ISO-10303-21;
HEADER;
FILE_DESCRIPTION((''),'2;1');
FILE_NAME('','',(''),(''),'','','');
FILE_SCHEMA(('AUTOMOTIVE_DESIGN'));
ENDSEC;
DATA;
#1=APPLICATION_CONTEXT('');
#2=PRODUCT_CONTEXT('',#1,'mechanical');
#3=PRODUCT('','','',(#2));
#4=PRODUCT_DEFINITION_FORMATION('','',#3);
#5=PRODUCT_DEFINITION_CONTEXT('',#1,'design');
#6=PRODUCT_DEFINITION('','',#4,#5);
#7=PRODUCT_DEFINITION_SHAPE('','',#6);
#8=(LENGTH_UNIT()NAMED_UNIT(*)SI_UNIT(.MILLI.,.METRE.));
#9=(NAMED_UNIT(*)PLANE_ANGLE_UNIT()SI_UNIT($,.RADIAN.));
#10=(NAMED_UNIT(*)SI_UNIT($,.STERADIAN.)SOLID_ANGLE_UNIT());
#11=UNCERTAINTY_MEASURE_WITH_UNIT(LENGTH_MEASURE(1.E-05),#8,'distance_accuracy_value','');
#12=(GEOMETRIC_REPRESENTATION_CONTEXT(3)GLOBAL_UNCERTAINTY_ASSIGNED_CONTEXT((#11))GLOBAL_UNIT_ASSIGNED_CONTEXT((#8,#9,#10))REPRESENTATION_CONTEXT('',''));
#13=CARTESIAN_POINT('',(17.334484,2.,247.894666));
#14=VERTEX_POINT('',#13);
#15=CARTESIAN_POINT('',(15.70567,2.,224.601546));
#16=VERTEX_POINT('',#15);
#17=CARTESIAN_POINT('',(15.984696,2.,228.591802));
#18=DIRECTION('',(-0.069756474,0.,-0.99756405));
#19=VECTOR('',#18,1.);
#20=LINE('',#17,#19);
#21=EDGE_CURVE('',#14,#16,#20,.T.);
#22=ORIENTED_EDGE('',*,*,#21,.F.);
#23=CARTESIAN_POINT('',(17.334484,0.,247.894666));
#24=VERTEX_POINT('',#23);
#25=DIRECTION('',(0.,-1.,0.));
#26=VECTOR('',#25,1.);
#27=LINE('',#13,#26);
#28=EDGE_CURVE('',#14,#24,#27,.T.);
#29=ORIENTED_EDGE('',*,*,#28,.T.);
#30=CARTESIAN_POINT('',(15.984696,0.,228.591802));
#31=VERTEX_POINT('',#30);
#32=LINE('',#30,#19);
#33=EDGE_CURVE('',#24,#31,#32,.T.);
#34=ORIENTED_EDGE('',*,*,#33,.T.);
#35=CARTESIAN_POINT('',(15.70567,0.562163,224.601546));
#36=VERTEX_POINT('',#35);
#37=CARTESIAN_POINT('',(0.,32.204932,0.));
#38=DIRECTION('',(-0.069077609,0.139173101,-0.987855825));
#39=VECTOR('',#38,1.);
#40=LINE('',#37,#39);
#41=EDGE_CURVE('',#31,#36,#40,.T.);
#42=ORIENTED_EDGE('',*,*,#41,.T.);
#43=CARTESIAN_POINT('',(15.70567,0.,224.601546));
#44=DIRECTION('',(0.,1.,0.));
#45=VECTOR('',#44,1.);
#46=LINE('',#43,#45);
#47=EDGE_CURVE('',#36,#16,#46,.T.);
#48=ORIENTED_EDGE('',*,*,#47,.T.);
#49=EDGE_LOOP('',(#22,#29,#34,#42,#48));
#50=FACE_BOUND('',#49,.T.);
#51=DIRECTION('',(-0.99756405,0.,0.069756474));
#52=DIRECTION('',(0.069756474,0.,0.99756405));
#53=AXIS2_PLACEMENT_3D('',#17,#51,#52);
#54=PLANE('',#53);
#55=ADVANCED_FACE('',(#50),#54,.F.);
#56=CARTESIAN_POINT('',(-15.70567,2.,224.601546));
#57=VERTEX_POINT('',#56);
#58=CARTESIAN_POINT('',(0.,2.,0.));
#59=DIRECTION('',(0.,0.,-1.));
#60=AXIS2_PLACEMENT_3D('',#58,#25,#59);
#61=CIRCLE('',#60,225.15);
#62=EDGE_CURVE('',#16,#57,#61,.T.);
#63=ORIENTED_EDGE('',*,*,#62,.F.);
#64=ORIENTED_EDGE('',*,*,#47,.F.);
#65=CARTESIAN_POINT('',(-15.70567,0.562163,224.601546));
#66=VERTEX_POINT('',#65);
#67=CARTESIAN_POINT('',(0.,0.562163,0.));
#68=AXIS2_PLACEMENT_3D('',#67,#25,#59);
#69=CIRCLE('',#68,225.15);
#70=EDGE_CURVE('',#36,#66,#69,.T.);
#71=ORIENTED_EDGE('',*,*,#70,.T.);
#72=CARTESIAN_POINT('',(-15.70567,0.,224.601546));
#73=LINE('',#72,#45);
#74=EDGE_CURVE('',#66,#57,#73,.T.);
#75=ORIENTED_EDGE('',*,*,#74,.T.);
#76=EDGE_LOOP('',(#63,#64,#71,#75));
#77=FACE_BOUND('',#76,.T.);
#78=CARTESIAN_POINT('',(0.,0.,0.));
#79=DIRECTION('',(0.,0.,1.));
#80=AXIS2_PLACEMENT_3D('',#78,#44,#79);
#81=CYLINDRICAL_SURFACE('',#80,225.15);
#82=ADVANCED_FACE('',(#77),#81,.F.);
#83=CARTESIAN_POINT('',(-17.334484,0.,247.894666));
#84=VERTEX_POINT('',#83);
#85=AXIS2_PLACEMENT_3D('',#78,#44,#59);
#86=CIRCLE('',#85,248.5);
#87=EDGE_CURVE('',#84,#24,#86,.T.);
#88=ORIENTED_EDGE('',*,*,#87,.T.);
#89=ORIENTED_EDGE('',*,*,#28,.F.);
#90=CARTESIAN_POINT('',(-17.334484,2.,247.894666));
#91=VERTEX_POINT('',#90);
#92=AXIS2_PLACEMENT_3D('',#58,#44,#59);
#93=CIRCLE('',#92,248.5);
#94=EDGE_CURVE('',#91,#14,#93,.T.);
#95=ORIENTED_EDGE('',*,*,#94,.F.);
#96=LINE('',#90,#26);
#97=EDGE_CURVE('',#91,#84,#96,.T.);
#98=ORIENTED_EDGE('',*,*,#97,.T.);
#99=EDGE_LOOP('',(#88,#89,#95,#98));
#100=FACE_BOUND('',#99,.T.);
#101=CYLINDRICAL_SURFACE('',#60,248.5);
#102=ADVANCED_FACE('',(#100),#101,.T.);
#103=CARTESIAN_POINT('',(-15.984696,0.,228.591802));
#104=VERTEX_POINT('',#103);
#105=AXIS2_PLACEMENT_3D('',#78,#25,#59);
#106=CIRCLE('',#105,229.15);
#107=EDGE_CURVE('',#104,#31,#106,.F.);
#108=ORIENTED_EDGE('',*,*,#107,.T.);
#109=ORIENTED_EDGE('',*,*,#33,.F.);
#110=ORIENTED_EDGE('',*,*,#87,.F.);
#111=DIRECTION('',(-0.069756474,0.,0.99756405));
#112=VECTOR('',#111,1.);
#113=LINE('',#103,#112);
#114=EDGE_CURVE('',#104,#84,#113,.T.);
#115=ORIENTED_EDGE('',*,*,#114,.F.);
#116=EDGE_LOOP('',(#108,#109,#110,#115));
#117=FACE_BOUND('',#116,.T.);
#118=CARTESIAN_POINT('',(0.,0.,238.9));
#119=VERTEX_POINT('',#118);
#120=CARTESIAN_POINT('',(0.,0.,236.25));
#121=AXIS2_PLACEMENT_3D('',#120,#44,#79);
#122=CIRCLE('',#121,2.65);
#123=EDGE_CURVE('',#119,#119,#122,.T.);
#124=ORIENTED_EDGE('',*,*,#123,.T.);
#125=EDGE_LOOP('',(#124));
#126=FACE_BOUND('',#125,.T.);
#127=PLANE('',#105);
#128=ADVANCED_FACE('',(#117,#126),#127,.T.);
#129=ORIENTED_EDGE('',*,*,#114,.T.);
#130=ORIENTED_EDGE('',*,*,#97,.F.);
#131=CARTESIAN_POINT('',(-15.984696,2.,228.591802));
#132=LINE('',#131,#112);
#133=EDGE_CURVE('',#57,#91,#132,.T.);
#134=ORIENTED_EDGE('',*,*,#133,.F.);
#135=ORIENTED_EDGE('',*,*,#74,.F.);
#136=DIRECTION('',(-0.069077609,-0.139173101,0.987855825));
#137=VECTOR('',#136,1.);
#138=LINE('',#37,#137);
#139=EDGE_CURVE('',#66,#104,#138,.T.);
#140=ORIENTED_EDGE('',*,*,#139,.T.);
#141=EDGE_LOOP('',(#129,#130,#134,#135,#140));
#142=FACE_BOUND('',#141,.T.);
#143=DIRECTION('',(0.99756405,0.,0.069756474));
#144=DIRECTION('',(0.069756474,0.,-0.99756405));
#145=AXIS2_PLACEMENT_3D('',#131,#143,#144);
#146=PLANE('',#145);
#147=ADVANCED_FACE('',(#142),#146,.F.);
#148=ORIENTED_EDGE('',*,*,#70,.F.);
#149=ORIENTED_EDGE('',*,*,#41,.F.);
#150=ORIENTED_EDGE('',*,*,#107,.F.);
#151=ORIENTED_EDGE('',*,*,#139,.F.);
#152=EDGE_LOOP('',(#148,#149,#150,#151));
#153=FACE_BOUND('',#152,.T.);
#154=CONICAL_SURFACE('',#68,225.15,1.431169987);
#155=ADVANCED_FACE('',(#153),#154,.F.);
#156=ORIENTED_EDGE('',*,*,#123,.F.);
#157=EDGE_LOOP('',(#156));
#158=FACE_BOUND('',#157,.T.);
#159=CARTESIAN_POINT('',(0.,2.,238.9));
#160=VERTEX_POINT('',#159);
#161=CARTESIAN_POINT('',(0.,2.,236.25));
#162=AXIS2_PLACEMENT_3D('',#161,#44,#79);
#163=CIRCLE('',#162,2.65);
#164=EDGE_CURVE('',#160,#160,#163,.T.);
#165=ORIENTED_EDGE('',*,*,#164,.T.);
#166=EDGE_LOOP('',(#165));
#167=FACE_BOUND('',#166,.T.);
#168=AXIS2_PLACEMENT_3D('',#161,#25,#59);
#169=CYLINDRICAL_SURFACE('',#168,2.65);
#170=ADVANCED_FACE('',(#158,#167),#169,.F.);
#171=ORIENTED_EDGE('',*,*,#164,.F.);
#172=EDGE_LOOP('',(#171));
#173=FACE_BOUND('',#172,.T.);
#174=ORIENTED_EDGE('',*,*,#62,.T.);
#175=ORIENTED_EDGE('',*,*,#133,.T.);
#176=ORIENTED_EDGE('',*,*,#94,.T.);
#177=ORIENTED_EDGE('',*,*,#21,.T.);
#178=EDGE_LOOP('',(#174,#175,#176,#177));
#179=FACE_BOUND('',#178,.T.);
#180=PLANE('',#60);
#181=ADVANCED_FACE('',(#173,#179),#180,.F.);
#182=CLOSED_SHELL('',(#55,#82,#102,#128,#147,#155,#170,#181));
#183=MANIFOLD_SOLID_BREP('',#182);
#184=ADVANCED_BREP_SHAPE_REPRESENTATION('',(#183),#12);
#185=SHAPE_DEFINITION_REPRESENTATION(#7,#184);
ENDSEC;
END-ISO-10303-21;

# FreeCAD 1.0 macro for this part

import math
import FreeCAD as App
import Part
import Sketcher

V = App.Vector
Q = App.Units.Quantity


def edges_at(feature, points):
    """Names of the edges that pass closest to the given points."""
    edges = feature.Shape.Edges
    near = lambda p: min(range(len(edges)), key=lambda i: edges[i].distToShape(Part.Vertex(*p))[0])
    return sorted({f"Edge{near(p) + 1}" for p in points})

doc = App.newDocument("Part")
body = doc.addObject("PartDesign::Body", "Body")

# Sketch on XZ plane
sketch1 = body.newObject("Sketcher::SketchObject", "Sketch")
sketch1.AttachmentSupport = (doc.getObject("XZ_Plane"), [""])
sketch1.MapMode = "FlatFace"
sketch1.addGeometry([
    Part.LineSegment(V(-15.984696, 228.591802, 0), V(-17.334484, 247.894666, 0)),  # 0
    Part.ArcOfCircle(Part.Circle(V(0, 0, 0), V(0, 0, 1), 248.5), math.radians(86), math.radians(94)),  # 1
    Part.LineSegment(V(17.334484, 247.894666, 0), V(15.984696, 228.591802, 0)),  # 2
    Part.ArcOfCircle(Part.Circle(V(0, 0, 0), V(0, 0, 1), 229.15), math.radians(86), math.radians(94)),  # 3
    Part.Circle(V(0, 236.25, 0), V(0, 0, 1), 2.65),  # 4
], False)
sketch1.addConstraint([
    Sketcher.Constraint("Coincident", 0, 2, 1, 2),
    Sketcher.Constraint("Coincident", 1, 1, 2, 1),
    Sketcher.Constraint("Coincident", 2, 2, 3, 1),
    Sketcher.Constraint("Coincident", 3, 2, 0, 1),
    Sketcher.Constraint("Coincident", 1, 3, -1, 1),
    Sketcher.Constraint("Coincident", 3, 3, -1, 1),
    Sketcher.Constraint("PointOnObject", 4, 3, -2),
    Sketcher.Constraint("Horizontal", 0, 2, 1, 1),
    Sketcher.Constraint("Horizontal", 2, 2, 3, 2),
    Sketcher.Constraint("Diameter", 4, Q("5.3 mm")),
    Sketcher.Constraint("Radius", 1, Q("248.5 mm")),
    Sketcher.Constraint("Angle", 0, Q("94 deg")),
    Sketcher.Constraint("Radius", 3, Q("229.15 mm")),
    Sketcher.Constraint("DistanceY", -1, 1, 4, 3, Q("236.25 mm")),
    Sketcher.Constraint("DistanceX", 0, 2, 2, 2, Q("33.31918 mm")),
])
pad1 = body.newObject("PartDesign::Pad", "Pad")
pad1.Profile = sketch1
pad1.Length = 2
pad1.Reversed = True

# Sketch on XZ plane
sketch2 = body.newObject("Sketcher::SketchObject", "Sketch001")
sketch2.AttachmentSupport = (doc.getObject("XZ_Plane"), [""])
sketch2.MapMode = "FlatFace"
sketch2.addGeometry([
    Part.LineSegment(V(-15.70567, 224.601546, 0), V(-15.984696, 228.591802, 0)),
    Part.ArcOfCircle(Part.Circle(V(0, 0, 0), V(0, 0, 1), 229.15), math.radians(86), math.radians(94)),
    Part.LineSegment(V(15.984696, 228.591802, 0), V(15.70567, 224.601546, 0)),
    Part.ArcOfCircle(Part.Circle(V(0, 0, 0), V(0, 0, 1), 225.15), math.radians(86), math.radians(94)),
], False)
sketch2.addConstraint([
    Sketcher.Constraint("Coincident", 0, 2, 1, 2),
    Sketcher.Constraint("Coincident", 1, 1, 2, 1),
    Sketcher.Constraint("Coincident", 2, 2, 3, 1),
    Sketcher.Constraint("Coincident", 3, 2, 0, 1),
    Sketcher.Constraint("Coincident", 1, 3, -1, 1),
    Sketcher.Constraint("Coincident", 3, 3, -1, 1),
    Sketcher.Constraint("Horizontal", 0, 2, 1, 1),
    Sketcher.Constraint("Horizontal", 2, 2, 3, 2),
    Sketcher.Constraint("Angle", 0, Q("94 deg")),
    Sketcher.Constraint("Radius", 1, Q("229.15 mm")),
    Sketcher.Constraint("Radius", 3, Q("225.15 mm")),
    Sketcher.Constraint("DistanceX", -1, 1, 2, 2, Q("15.70567 mm")),
])
pad2 = body.newObject("PartDesign::Pad", "Pad001")
pad2.Profile = sketch2
pad2.Length = 2
pad2.Reversed = True
doc.recompute()

chamfer = body.newObject("PartDesign::Chamfer", "Chamfer")
chamfer.Base = (pad2, edges_at(pad2, [(0, 0, 225.15)]))
chamfer.ChamferType = "Two distances"
chamfer.Size = 4
chamfer.Size2 = 0.562163
chamfer.FlipDirection = True

doc.recompute()
